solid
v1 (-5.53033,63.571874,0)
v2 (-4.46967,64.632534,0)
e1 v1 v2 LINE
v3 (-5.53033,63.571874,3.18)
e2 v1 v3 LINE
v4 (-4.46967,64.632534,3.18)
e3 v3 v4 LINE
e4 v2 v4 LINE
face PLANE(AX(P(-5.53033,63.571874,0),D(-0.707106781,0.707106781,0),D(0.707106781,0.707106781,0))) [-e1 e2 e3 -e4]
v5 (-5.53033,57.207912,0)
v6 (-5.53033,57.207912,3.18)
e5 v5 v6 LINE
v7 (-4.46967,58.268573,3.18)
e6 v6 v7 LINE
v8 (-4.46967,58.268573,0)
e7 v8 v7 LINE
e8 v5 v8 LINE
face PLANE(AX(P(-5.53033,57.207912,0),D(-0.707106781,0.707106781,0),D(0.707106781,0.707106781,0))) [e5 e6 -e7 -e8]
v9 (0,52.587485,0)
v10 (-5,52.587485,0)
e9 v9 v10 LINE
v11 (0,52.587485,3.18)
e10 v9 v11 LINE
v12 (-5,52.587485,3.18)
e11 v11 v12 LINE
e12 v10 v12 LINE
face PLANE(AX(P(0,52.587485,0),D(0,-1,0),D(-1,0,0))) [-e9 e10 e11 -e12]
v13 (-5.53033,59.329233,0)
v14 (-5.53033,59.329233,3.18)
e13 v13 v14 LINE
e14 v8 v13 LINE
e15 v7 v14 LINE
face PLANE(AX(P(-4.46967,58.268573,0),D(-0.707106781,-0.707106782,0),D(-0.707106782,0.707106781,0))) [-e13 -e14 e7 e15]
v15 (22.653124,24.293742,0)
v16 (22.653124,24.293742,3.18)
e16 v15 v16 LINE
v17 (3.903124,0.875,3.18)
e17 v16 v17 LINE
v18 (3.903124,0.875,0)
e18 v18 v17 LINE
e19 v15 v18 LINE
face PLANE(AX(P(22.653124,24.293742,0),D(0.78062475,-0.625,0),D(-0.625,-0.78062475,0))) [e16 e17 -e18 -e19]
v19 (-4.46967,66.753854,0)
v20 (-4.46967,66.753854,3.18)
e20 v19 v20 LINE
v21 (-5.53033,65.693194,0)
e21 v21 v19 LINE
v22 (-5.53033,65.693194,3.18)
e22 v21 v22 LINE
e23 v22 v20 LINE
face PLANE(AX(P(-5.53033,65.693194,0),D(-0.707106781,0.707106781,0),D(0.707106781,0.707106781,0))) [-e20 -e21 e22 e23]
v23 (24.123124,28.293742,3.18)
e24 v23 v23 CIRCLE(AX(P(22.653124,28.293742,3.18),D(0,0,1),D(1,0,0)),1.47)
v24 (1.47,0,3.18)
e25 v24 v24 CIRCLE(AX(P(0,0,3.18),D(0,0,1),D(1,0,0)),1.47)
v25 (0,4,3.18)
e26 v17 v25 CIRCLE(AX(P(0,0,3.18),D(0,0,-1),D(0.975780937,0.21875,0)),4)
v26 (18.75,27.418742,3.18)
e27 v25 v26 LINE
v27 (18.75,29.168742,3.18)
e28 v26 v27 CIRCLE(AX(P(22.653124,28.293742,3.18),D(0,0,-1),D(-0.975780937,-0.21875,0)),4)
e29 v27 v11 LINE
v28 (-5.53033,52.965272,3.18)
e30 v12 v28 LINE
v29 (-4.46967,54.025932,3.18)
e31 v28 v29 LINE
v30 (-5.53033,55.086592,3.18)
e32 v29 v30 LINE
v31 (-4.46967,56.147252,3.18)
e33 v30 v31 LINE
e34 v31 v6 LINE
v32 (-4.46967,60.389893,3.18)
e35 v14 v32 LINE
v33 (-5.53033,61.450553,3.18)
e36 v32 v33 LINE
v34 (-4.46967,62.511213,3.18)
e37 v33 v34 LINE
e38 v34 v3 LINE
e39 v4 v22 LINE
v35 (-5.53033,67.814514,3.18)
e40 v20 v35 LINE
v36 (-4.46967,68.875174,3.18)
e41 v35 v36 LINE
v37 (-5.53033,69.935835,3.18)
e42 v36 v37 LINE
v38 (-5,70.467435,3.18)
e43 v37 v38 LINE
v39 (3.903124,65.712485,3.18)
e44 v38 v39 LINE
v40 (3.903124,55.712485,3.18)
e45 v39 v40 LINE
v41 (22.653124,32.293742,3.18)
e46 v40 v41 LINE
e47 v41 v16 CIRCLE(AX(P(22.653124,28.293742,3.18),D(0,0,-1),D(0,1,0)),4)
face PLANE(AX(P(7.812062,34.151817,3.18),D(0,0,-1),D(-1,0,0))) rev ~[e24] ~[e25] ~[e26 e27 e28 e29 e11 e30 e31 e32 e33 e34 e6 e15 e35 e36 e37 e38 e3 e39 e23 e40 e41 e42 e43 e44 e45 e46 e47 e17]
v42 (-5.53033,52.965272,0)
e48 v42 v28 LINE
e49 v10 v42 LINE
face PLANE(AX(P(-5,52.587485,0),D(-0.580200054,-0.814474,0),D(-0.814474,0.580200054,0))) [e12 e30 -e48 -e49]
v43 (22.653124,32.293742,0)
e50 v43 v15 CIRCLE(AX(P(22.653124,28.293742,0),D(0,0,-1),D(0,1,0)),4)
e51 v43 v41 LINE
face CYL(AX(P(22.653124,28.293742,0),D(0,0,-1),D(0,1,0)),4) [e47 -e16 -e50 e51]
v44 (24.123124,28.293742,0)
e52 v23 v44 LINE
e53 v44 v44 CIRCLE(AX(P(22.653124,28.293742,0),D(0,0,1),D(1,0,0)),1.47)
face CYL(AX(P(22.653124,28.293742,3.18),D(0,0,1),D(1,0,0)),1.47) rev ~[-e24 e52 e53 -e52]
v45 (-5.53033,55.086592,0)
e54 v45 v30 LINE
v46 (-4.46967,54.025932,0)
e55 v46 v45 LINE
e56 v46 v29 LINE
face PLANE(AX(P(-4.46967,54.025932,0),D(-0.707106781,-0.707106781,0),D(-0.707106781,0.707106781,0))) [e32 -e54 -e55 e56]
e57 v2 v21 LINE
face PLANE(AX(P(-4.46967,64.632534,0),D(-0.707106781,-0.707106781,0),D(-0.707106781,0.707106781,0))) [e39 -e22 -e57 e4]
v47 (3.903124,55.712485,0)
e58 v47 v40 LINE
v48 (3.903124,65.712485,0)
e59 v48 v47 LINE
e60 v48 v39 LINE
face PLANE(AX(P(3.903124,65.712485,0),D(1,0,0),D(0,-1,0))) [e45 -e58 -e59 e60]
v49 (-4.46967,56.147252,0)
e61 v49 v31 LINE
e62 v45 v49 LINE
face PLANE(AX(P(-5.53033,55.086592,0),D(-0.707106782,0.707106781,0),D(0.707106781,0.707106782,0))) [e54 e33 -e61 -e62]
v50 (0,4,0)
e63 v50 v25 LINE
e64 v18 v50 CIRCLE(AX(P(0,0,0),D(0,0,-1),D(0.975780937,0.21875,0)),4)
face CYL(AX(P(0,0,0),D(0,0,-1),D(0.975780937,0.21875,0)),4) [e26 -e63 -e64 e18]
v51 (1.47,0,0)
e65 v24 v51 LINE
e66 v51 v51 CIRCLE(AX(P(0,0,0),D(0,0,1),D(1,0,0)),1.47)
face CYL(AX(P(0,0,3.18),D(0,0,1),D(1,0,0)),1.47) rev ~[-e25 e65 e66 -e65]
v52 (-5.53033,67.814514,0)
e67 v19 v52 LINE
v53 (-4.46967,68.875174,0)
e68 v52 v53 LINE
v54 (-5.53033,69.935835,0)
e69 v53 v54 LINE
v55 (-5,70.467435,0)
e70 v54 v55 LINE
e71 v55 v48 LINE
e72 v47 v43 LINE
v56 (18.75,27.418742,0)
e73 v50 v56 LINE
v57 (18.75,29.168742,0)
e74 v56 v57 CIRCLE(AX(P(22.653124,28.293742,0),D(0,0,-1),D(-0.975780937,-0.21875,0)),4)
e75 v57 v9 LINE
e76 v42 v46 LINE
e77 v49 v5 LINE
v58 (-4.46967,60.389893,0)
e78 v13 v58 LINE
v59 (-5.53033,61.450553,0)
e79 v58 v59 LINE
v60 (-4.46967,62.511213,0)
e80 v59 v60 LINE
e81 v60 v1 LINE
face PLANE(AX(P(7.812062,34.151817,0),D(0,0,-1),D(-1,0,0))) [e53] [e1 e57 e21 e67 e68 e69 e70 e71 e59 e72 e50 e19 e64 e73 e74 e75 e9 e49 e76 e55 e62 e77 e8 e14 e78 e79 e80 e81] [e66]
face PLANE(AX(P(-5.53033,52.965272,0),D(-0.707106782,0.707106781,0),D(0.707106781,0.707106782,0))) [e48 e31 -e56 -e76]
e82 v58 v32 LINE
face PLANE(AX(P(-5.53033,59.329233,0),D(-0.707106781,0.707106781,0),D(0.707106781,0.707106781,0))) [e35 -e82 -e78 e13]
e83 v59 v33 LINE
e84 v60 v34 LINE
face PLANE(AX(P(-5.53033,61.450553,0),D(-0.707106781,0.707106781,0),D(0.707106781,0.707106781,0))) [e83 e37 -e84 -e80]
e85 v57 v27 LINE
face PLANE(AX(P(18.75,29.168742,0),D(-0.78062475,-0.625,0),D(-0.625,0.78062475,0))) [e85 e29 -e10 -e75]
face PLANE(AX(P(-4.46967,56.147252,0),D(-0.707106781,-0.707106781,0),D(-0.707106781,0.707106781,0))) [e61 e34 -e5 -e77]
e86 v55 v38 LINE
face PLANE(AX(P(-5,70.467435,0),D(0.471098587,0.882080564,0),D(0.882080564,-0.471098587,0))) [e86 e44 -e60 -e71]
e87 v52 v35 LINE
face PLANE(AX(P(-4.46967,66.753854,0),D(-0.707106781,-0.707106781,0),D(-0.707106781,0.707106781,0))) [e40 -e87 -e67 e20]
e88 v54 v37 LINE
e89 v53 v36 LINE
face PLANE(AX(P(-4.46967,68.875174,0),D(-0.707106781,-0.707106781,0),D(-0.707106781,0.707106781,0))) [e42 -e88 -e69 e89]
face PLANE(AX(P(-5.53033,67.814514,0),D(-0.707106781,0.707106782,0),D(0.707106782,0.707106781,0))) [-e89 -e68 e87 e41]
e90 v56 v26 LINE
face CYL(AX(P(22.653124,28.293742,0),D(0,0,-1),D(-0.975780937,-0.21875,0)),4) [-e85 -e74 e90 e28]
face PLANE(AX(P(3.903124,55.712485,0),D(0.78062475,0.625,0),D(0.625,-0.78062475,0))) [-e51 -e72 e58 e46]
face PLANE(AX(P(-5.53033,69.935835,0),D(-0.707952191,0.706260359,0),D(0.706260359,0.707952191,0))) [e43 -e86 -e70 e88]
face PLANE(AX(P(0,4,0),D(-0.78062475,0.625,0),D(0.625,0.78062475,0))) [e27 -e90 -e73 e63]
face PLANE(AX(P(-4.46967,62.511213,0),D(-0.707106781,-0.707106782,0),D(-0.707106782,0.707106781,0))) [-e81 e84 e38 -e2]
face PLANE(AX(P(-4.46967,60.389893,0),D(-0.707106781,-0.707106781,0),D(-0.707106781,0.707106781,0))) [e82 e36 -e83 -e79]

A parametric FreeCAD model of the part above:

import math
import FreeCAD as App
import Part
import Sketcher

doc = App.newDocument("Part")
params = doc.addObject("Spreadsheet::Sheet", "Params")
for row, (alias, value) in enumerate([
    ("sketch1_radius", "4 mm"),
    ("sketch1_width", "5 mm"),
    ("sketch1_height", "10 mm"),
    ("sketch1_length", "30 mm"),
    ("sketch1_length2", "1.5 mm"),
    ("pad1_length", "3.18 mm"),
    ("sketch2_diameter", "2.94 mm"),
], start=1):
    params.set(f"A{row}", alias)
    params.set(f"B{row}", "=" + value)
    params.setAlias(f"B{row}", alias)

body = doc.addObject("PartDesign::Body", "Body")

# Sketch on XY plane
sketch1 = body.newObject("Sketcher::SketchObject", "Sketch")
sketch1.AttachmentSupport = (doc.getObject("XY_Plane"), [""])
sketch1.MapMode = "FlatFace"
sketch1.addGeometry([
    Part.LineSegment(App.Vector(18.75, 27.418742, 0), App.Vector(0, 4, 0)),  # 0
    Part.ArcOfCircle(Part.Circle(App.Vector(0, 0, 0), App.Vector(0, 0, 1), 4), math.radians(90), math.radians(372.635625)),  # 1
    Part.LineSegment(App.Vector(3.903124, 0.875, 0), App.Vector(22.653124, 24.293742, 0)),  # 2
    Part.ArcOfCircle(Part.Circle(App.Vector(22.653124, 28.293742, 0), App.Vector(0, 0, 1), 4), math.radians(-90), math.radians(90)),  # 3
    Part.LineSegment(App.Vector(22.653124, 32.293742, 0), App.Vector(3.903124, 55.712485, 0)),  # 4
    Part.LineSegment(App.Vector(3.903124, 55.712485, 0), App.Vector(3.903124, 65.712485, 0)),  # 5
    Part.LineSegment(App.Vector(3.903124, 65.712485, 0), App.Vector(-5, 70.467435, 0)),  # 6
    Part.LineSegment(App.Vector(-5, 70.467435, 0), App.Vector(-5.53033, 69.935835, 0)),  # 7
    Part.LineSegment(App.Vector(-5.53033, 69.935835, 0), App.Vector(-4.46967, 68.875174, 0)),  # 8
    Part.LineSegment(App.Vector(-4.46967, 68.875174, 0), App.Vector(-5.53033, 67.814514, 0)),  # 9
    Part.LineSegment(App.Vector(-5.53033, 67.814514, 0), App.Vector(-4.46967, 66.753854, 0)),  # 10
    Part.LineSegment(App.Vector(-4.46967, 66.753854, 0), App.Vector(-5.53033, 65.693194, 0)),  # 11
    Part.LineSegment(App.Vector(-5.53033, 65.693194, 0), App.Vector(-4.46967, 64.632534, 0)),  # 12
    Part.LineSegment(App.Vector(-4.46967, 64.632534, 0), App.Vector(-5.53033, 63.571874, 0)),  # 13
    Part.LineSegment(App.Vector(-5.53033, 63.571874, 0), App.Vector(-4.46967, 62.511213, 0)),  # 14
    Part.LineSegment(App.Vector(-4.46967, 62.511213, 0), App.Vector(-5.53033, 61.450553, 0)),  # 15
    Part.LineSegment(App.Vector(-5.53033, 61.450553, 0), App.Vector(-4.46967, 60.389893, 0)),  # 16
    Part.LineSegment(App.Vector(-4.46967, 60.389893, 0), App.Vector(-5.53033, 59.329233, 0)),  # 17
    Part.LineSegment(App.Vector(-5.53033, 59.329233, 0), App.Vector(-4.46967, 58.268573, 0)),  # 18
    Part.LineSegment(App.Vector(-4.46967, 58.268573, 0), App.Vector(-5.53033, 57.207912, 0)),  # 19
    Part.LineSegment(App.Vector(-5.53033, 57.207912, 0), App.Vector(-4.46967, 56.147252, 0)),  # 20
    Part.LineSegment(App.Vector(-4.46967, 56.147252, 0), App.Vector(-5.53033, 55.086592, 0)),  # 21
    Part.LineSegment(App.Vector(-5.53033, 55.086592, 0), App.Vector(-4.46967, 54.025932, 0)),  # 22
    Part.LineSegment(App.Vector(-4.46967, 54.025932, 0), App.Vector(-5.53033, 52.965272, 0)),  # 23
    Part.LineSegment(App.Vector(-5.53033, 52.965272, 0), App.Vector(-5, 52.587485, 0)),  # 24
    Part.LineSegment(App.Vector(-5, 52.587485, 0), App.Vector(0, 52.587485, 0)),  # 25
    Part.LineSegment(App.Vector(0, 52.587485, 0), App.Vector(18.75, 29.168742, 0)),  # 26
    Part.ArcOfCircle(Part.Circle(App.Vector(22.653124, 28.293742, 0), App.Vector(0, 0, 1), 4), math.radians(167.364375), math.radians(192.635625)),  # 27
], False)
sketch1.addConstraint([
    Sketcher.Constraint("Coincident", 0, 2, 1, 1),
    Sketcher.Constraint("Coincident", 1, 2, 2, 1),
    Sketcher.Constraint("Coincident", 2, 2, 3, 1),
    Sketcher.Constraint("Coincident", 3, 2, 4, 1),
    Sketcher.Constraint("Coincident", 4, 2, 5, 1),
    Sketcher.Constraint("Coincident", 5, 2, 6, 1),
    Sketcher.Constraint("Coincident", 6, 2, 7, 1),
    Sketcher.Constraint("Coincident", 7, 2, 8, 1),
    Sketcher.Constraint("Coincident", 8, 2, 9, 1),
    Sketcher.Constraint("Coincident", 9, 2, 10, 1),
    Sketcher.Constraint("Coincident", 10, 2, 11, 1),
    Sketcher.Constraint("Coincident", 11, 2, 12, 1),
    Sketcher.Constraint("Coincident", 12, 2, 13, 1),
    Sketcher.Constraint("Coincident", 13, 2, 14, 1),
    Sketcher.Constraint("Coincident", 14, 2, 15, 1),
    Sketcher.Constraint("Coincident", 15, 2, 16, 1),
    Sketcher.Constraint("Coincident", 16, 2, 17, 1),
    Sketcher.Constraint("Coincident", 17, 2, 18, 1),
    Sketcher.Constraint("Coincident", 18, 2, 19, 1),
    Sketcher.Constraint("Coincident", 19, 2, 20, 1),
    Sketcher.Constraint("Coincident", 20, 2, 21, 1),
    Sketcher.Constraint("Coincident", 21, 2, 22, 1),
    Sketcher.Constraint("Coincident", 22, 2, 23, 1),
    Sketcher.Constraint("Coincident", 23, 2, 24, 1),
    Sketcher.Constraint("Coincident", 24, 2, 25, 1),
    Sketcher.Constraint("Coincident", 25, 2, 26, 1),
    Sketcher.Constraint("Coincident", 26, 2, 27, 1),
    Sketcher.Constraint("Coincident", 27, 2, 0, 1),
    Sketcher.Constraint("Vertical", 5),
    Sketcher.Constraint("Horizontal", 25),
    Sketcher.Constraint("Coincident", 1, 3, -1, 1),
    Sketcher.Constraint("Coincident", 27, 3, 3, 3),
    Sketcher.Constraint("Equal", 1, 3),
    Sketcher.Constraint("Equal", 3, 27),
    Sketcher.Constraint("PointOnObject", 0, 2, -2),
    Sketcher.Constraint("PointOnObject", 25, 2, -2),
    Sketcher.Constraint("Parallel", 0, 2),
    Sketcher.Constraint("Perpendicular", 8, 9),
    Sketcher.Constraint("Perpendicular", 9, 10),
    Sketcher.Constraint("Perpendicular", 10, 11),
    Sketcher.Constraint("Perpendicular", 11, 12),
    Sketcher.Constraint("Perpendicular", 12, 13),
    Sketcher.Constraint("Perpendicular", 13, 14),
    Sketcher.Constraint("Perpendicular", 14, 15),
    Sketcher.Constraint("Perpendicular", 15, 16),
    Sketcher.Constraint("Perpendicular", 16, 17),
    Sketcher.Constraint("Perpendicular", 17, 18),
    Sketcher.Constraint("Perpendicular", 18, 19),
    Sketcher.Constraint("Perpendicular", 19, 20),
    Sketcher.Constraint("Perpendicular", 20, 21),
    Sketcher.Constraint("Perpendicular", 21, 22),
    Sketcher.Constraint("Perpendicular", 22, 23),
    Sketcher.Constraint("Parallel", 4, 26),
    Sketcher.Constraint("Vertical", 27, 3, 2, 2),
    Sketcher.Constraint("Vertical", 2, 2, 3, 2),
    Sketcher.Constraint("Vertical", 1, 2, 4, 2),
    Sketcher.Constraint("Vertical", 7, 2, 9, 2),
    Sketcher.Constraint("Vertical", 8, 2, 10, 2),
    Sketcher.Constraint("Vertical", 9, 2, 11, 2),
    Sketcher.Constraint("Vertical", 10, 2, 12, 2),
    Sketcher.Constraint("Vertical", 11, 2, 13, 2),
    Sketcher.Constraint("Vertical", 12, 2, 14, 2),
    Sketcher.Constraint("Vertical", 13, 2, 15, 2),
    Sketcher.Constraint("Vertical", 14, 2, 16, 2),
    Sketcher.Constraint("Vertical", 15, 2, 17, 2),
    Sketcher.Constraint("Vertical", 16, 2, 18, 2),
    Sketcher.Constraint("Vertical", 17, 2, 19, 2),
    Sketcher.Constraint("Vertical", 18, 2, 20, 2),
    Sketcher.Constraint("Vertical", 19, 2, 21, 2),
    Sketcher.Constraint("Vertical", 20, 2, 22, 2),
    Sketcher.Constraint("Vertical", 21, 2, 23, 2),
    Sketcher.Constraint("Vertical", 6, 2, 24, 2),
    Sketcher.Constraint("Vertical", 26, 2, 27, 2),
    Sketcher.Constraint("Equal", 2, 4),
    Sketcher.Constraint("Equal", 8, 9),
    Sketcher.Constraint("Radius", 1, 4.0),
    Sketcher.Constraint("DistanceX", 25, 1, 25, 2, 5.0),
    Sketcher.Constraint("DistanceY", 5, 1, 5, 2, 10.0),
    Sketcher.Constraint("Distance", 0, 30.0),
    Sketcher.Constraint("Distance", 8, 1.5),
    Sketcher.Constraint("DistanceX", -1, 1, 26, 2, 18.75),
    Sketcher.Constraint("DistanceY", 27, 2, 26, 2, 1.75),
    Sketcher.Constraint("Distance", 7, 0.750899),
    Sketcher.Constraint("DistanceY", 7, 2, 6, 2, 0.5316),
    Sketcher.Constraint("DistanceY", -1, 1, 22, 2, 54.025932),
])
sketch1.setExpression("Constraints[75]", "Params.sketch1_radius")
sketch1.setExpression("Constraints[76]", "Params.sketch1_width")
sketch1.setExpression("Constraints[77]", "Params.sketch1_height")
sketch1.setExpression("Constraints[78]", "Params.sketch1_length")
sketch1.setExpression("Constraints[79]", "Params.sketch1_length2")
pad1 = body.newObject("PartDesign::Pad", "Pad")
pad1.Profile = sketch1
pad1.setExpression("Length", "Params.pad1_length")

# Sketch on XY plane
sketch2 = body.newObject("Sketcher::SketchObject", "Sketch001")
sketch2.AttachmentSupport = (doc.getObject("XY_Plane"), [""])
sketch2.MapMode = "FlatFace"
sketch2.AttachmentOffset = App.Placement(App.Vector(0, 0, 3.18), App.Rotation())
sketch2.addGeometry([
    Part.Circle(App.Vector(22.653124, 28.293742, 0), App.Vector(0, 0, 1), 1.47),
    Part.Circle(App.Vector(0, 0, 0), App.Vector(0, 0, 1), 1.47),
], False)
sketch2.addConstraint([
    Sketcher.Constraint("Coincident", 1, 3, -1, 1),
    Sketcher.Constraint("Equal", 0, 1),
    Sketcher.Constraint("Diameter", 0, 2.94),
    Sketcher.Constraint("DistanceX", -1, 1, 0, 3, 22.653124),
    Sketcher.Constraint("DistanceY", -1, 1, 0, 3, 28.293742),
])
sketch2.setExpression("Constraints[2]", "Params.sketch2_diameter")
pocket1 = body.newObject("PartDesign::Pocket", "Pocket")
pocket1.Profile = sketch2
pocket1.Type = "ThroughAll"

doc.recompute()
